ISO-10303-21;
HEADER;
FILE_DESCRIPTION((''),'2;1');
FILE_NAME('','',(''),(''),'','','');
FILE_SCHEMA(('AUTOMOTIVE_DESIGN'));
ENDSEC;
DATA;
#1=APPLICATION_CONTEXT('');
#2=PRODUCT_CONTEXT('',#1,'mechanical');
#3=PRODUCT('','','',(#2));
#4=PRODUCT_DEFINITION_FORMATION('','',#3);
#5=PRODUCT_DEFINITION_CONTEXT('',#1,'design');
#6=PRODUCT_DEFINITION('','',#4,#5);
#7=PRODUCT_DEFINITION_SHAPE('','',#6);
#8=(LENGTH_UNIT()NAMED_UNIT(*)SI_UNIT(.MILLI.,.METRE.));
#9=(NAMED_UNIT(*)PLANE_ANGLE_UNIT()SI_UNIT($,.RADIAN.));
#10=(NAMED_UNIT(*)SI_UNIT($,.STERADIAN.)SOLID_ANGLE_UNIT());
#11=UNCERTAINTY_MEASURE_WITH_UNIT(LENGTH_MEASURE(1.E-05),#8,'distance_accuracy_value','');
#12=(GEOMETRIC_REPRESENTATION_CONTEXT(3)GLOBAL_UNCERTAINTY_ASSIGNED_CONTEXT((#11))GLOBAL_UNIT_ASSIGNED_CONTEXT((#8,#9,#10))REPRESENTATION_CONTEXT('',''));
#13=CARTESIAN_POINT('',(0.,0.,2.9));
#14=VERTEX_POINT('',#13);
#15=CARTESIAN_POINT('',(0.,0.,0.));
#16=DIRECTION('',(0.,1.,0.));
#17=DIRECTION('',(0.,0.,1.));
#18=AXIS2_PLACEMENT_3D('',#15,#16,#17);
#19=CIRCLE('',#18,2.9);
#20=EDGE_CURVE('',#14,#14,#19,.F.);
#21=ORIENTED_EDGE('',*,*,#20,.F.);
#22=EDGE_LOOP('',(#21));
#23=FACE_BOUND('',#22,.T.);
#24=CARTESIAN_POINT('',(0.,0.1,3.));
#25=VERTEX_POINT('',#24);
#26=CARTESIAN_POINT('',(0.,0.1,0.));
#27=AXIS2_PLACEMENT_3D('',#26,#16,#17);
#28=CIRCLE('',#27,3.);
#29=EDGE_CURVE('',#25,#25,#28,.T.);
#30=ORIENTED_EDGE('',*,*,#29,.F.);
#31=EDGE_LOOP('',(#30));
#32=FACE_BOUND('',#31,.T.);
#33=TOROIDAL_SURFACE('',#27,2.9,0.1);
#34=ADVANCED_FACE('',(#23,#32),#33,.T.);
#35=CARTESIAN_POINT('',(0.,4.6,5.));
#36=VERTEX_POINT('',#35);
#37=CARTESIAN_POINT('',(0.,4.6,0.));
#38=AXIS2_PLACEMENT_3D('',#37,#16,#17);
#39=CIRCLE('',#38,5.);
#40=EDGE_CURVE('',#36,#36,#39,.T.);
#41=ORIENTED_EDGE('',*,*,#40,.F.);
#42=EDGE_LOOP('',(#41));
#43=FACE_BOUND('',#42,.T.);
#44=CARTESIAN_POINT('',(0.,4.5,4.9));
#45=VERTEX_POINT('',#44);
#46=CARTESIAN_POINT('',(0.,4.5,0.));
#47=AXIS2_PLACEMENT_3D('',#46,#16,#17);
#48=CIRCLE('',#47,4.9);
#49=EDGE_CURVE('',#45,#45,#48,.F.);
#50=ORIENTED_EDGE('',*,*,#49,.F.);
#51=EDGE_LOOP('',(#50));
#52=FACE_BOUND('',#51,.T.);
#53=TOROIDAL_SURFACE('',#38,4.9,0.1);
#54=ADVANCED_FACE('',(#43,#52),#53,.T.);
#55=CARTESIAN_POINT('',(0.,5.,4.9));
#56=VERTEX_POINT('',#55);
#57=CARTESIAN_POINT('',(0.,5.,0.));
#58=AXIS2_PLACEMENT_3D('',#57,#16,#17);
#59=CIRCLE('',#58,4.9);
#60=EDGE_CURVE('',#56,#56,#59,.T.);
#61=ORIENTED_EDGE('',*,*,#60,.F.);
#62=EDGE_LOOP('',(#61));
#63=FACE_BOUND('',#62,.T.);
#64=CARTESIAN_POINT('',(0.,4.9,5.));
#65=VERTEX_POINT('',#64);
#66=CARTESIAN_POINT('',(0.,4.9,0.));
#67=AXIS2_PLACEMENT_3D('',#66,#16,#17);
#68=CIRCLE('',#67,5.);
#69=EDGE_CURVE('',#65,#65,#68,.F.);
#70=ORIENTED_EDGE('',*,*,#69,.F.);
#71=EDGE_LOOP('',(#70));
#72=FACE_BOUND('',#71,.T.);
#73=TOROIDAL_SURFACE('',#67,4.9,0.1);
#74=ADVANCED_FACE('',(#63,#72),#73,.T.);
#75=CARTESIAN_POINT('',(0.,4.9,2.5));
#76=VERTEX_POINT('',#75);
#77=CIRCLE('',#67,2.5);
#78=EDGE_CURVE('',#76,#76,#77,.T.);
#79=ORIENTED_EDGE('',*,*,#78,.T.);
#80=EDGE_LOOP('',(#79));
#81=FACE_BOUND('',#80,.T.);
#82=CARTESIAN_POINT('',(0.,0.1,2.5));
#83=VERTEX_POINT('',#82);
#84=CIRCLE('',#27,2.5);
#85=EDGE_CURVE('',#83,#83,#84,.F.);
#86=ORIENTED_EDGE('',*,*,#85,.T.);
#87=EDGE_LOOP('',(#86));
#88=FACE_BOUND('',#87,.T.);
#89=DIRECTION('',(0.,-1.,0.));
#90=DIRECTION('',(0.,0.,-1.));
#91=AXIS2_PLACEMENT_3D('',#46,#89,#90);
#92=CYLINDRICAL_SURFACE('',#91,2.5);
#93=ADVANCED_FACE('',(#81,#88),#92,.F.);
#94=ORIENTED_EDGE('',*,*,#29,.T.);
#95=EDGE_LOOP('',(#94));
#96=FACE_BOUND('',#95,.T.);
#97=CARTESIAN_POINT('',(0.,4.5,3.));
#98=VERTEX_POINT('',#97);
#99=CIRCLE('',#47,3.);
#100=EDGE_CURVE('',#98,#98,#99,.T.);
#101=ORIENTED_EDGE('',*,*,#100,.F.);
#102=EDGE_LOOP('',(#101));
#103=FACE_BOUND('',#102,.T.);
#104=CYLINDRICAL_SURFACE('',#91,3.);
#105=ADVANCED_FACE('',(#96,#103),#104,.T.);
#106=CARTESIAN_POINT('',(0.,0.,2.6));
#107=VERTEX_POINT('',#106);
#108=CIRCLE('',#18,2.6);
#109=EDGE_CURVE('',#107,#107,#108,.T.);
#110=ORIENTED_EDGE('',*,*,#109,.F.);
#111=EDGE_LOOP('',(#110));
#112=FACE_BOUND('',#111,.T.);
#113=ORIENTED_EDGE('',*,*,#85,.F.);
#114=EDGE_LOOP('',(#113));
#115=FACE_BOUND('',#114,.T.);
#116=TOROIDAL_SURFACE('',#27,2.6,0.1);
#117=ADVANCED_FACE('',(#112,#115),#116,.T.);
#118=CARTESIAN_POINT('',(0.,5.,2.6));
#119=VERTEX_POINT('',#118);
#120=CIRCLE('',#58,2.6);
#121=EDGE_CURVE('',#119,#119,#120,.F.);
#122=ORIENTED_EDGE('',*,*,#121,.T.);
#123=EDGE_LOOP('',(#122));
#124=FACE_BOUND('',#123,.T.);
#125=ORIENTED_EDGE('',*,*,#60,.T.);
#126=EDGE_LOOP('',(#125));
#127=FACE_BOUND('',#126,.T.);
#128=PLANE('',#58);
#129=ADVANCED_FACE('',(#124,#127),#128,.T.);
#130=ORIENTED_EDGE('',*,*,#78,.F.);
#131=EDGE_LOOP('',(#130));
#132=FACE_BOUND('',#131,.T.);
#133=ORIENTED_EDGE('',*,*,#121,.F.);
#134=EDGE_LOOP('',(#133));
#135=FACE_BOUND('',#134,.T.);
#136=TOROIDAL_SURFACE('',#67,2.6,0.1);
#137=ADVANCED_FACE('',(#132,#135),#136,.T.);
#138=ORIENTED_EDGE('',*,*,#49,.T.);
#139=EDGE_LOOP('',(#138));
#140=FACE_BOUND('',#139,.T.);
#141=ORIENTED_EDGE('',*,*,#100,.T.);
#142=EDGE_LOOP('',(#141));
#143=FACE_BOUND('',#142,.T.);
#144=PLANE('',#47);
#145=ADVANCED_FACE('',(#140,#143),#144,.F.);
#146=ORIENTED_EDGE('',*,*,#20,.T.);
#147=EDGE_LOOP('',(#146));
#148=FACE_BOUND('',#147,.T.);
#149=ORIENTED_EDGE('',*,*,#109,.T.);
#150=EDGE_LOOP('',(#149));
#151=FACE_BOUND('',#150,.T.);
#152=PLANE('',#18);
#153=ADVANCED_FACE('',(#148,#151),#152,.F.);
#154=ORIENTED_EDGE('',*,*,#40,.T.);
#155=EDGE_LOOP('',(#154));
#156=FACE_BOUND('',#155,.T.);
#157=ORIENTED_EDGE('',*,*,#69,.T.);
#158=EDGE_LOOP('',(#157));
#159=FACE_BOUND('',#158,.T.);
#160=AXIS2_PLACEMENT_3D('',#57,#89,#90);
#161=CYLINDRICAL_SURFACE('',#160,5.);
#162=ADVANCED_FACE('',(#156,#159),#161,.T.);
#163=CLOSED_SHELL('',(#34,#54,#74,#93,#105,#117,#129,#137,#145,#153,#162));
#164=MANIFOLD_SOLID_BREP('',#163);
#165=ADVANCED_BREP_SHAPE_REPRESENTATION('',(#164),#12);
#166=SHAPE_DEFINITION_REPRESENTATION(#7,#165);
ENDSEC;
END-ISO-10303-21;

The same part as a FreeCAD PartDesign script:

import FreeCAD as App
import Part
import Sketcher


def edges_at(feature, points):
    """Names of the edges that pass closest to the given points."""
    edges = feature.Shape.Edges
    near = lambda p: min(range(len(edges)), key=lambda i: edges[i].distToShape(Part.Vertex(*p))[0])
    return sorted({f"Edge{near(p) + 1}" for p in points})

doc = App.newDocument("Part")
params = doc.addObject("Spreadsheet::Sheet", "Params")
for row, (alias, value) in enumerate([
    ("sketch1_diameter", "6 mm"),
    ("sketch1_diameter2", "5 mm"),
    ("pad1_length", "4.5 mm"),
    ("sketch2_diameter", "10 mm"),
    ("sketch2_diameter2", "5 mm"),
    ("pad2_length", "0.5 mm"),
    ("fillet_radius", "0.1 mm"),
], start=1):
    params.set(f"A{row}", alias)
    params.set(f"B{row}", "=" + value)
    params.setAlias(f"B{row}", alias)

body = doc.addObject("PartDesign::Body", "Body")

# Sketch on XZ plane
sketch1 = body.newObject("Sketcher::SketchObject", "Sketch")
sketch1.AttachmentSupport = (doc.getObject("XZ_Plane"), [""])
sketch1.MapMode = "FlatFace"
sketch1.addGeometry(Part.Circle(App.Vector(0, 0, 0), App.Vector(0, 0, 1), 3), False)
sketch1.addGeometry(Part.Circle(App.Vector(0, 0, 0), App.Vector(0, 0, 1), 2.5), False)
sketch1.addConstraint(Sketcher.Constraint("Coincident", 0, 3, -1, 1))
sketch1.addConstraint(Sketcher.Constraint("Coincident", 1, 3, -1, 1))
sketch1.addConstraint(Sketcher.Constraint("Diameter", 0, 6.0))
sketch1.addConstraint(Sketcher.Constraint("Diameter", 1, 5.0))
sketch1.setExpression("Constraints[2]", "Params.sketch1_diameter")
sketch1.setExpression("Constraints[3]", "Params.sketch1_diameter2")
pad1 = body.newObject("PartDesign::Pad", "Pad")
pad1.Profile = sketch1
pad1.setExpression("Length", "Params.pad1_length")
pad1.Reversed = True

# Sketch on XZ plane
sketch2 = body.newObject("Sketcher::SketchObject", "Sketch001")
sketch2.AttachmentSupport = (doc.getObject("XZ_Plane"), [""])
sketch2.MapMode = "FlatFace"
sketch2.AttachmentOffset = App.Placement(App.Vector(0, 0, -4.5), App.Rotation())
sketch2.addGeometry(Part.Circle(App.Vector(0, 0, 0), App.Vector(0, 0, 1), 5), False)
sketch2.addGeometry(Part.Circle(App.Vector(0, 0, 0), App.Vector(0, 0, 1), 2.5), False)
sketch2.addConstraint(Sketcher.Constraint("Coincident", 0, 3, -1, 1))
sketch2.addConstraint(Sketcher.Constraint("Coincident", 1, 3, -1, 1))
sketch2.addConstraint(Sketcher.Constraint("Diameter", 0, 10.0))
sketch2.addConstraint(Sketcher.Constraint("Diameter", 1, 5.0))
sketch2.setExpression("Constraints[2]", "Params.sketch2_diameter")
sketch2.setExpression("Constraints[3]", "Params.sketch2_diameter2")
pad2 = body.newObject("PartDesign::Pad", "Pad001")
pad2.Profile = sketch2
pad2.setExpression("Length", "Params.pad2_length")
pad2.Reversed = True
doc.recompute()

fillet = body.newObject("PartDesign::Fillet", "Fillet")
fillet.Base = (pad2, edges_at(pad2, [
    (0, 4.5, -5),
    (0, 5, -2.5),
    (0, 0, -3),
    (0, 0, -2.5),
    (0, 5, -5),
]))
fillet.setExpression("Radius", "Params.fillet_radius")

doc.recompute()
